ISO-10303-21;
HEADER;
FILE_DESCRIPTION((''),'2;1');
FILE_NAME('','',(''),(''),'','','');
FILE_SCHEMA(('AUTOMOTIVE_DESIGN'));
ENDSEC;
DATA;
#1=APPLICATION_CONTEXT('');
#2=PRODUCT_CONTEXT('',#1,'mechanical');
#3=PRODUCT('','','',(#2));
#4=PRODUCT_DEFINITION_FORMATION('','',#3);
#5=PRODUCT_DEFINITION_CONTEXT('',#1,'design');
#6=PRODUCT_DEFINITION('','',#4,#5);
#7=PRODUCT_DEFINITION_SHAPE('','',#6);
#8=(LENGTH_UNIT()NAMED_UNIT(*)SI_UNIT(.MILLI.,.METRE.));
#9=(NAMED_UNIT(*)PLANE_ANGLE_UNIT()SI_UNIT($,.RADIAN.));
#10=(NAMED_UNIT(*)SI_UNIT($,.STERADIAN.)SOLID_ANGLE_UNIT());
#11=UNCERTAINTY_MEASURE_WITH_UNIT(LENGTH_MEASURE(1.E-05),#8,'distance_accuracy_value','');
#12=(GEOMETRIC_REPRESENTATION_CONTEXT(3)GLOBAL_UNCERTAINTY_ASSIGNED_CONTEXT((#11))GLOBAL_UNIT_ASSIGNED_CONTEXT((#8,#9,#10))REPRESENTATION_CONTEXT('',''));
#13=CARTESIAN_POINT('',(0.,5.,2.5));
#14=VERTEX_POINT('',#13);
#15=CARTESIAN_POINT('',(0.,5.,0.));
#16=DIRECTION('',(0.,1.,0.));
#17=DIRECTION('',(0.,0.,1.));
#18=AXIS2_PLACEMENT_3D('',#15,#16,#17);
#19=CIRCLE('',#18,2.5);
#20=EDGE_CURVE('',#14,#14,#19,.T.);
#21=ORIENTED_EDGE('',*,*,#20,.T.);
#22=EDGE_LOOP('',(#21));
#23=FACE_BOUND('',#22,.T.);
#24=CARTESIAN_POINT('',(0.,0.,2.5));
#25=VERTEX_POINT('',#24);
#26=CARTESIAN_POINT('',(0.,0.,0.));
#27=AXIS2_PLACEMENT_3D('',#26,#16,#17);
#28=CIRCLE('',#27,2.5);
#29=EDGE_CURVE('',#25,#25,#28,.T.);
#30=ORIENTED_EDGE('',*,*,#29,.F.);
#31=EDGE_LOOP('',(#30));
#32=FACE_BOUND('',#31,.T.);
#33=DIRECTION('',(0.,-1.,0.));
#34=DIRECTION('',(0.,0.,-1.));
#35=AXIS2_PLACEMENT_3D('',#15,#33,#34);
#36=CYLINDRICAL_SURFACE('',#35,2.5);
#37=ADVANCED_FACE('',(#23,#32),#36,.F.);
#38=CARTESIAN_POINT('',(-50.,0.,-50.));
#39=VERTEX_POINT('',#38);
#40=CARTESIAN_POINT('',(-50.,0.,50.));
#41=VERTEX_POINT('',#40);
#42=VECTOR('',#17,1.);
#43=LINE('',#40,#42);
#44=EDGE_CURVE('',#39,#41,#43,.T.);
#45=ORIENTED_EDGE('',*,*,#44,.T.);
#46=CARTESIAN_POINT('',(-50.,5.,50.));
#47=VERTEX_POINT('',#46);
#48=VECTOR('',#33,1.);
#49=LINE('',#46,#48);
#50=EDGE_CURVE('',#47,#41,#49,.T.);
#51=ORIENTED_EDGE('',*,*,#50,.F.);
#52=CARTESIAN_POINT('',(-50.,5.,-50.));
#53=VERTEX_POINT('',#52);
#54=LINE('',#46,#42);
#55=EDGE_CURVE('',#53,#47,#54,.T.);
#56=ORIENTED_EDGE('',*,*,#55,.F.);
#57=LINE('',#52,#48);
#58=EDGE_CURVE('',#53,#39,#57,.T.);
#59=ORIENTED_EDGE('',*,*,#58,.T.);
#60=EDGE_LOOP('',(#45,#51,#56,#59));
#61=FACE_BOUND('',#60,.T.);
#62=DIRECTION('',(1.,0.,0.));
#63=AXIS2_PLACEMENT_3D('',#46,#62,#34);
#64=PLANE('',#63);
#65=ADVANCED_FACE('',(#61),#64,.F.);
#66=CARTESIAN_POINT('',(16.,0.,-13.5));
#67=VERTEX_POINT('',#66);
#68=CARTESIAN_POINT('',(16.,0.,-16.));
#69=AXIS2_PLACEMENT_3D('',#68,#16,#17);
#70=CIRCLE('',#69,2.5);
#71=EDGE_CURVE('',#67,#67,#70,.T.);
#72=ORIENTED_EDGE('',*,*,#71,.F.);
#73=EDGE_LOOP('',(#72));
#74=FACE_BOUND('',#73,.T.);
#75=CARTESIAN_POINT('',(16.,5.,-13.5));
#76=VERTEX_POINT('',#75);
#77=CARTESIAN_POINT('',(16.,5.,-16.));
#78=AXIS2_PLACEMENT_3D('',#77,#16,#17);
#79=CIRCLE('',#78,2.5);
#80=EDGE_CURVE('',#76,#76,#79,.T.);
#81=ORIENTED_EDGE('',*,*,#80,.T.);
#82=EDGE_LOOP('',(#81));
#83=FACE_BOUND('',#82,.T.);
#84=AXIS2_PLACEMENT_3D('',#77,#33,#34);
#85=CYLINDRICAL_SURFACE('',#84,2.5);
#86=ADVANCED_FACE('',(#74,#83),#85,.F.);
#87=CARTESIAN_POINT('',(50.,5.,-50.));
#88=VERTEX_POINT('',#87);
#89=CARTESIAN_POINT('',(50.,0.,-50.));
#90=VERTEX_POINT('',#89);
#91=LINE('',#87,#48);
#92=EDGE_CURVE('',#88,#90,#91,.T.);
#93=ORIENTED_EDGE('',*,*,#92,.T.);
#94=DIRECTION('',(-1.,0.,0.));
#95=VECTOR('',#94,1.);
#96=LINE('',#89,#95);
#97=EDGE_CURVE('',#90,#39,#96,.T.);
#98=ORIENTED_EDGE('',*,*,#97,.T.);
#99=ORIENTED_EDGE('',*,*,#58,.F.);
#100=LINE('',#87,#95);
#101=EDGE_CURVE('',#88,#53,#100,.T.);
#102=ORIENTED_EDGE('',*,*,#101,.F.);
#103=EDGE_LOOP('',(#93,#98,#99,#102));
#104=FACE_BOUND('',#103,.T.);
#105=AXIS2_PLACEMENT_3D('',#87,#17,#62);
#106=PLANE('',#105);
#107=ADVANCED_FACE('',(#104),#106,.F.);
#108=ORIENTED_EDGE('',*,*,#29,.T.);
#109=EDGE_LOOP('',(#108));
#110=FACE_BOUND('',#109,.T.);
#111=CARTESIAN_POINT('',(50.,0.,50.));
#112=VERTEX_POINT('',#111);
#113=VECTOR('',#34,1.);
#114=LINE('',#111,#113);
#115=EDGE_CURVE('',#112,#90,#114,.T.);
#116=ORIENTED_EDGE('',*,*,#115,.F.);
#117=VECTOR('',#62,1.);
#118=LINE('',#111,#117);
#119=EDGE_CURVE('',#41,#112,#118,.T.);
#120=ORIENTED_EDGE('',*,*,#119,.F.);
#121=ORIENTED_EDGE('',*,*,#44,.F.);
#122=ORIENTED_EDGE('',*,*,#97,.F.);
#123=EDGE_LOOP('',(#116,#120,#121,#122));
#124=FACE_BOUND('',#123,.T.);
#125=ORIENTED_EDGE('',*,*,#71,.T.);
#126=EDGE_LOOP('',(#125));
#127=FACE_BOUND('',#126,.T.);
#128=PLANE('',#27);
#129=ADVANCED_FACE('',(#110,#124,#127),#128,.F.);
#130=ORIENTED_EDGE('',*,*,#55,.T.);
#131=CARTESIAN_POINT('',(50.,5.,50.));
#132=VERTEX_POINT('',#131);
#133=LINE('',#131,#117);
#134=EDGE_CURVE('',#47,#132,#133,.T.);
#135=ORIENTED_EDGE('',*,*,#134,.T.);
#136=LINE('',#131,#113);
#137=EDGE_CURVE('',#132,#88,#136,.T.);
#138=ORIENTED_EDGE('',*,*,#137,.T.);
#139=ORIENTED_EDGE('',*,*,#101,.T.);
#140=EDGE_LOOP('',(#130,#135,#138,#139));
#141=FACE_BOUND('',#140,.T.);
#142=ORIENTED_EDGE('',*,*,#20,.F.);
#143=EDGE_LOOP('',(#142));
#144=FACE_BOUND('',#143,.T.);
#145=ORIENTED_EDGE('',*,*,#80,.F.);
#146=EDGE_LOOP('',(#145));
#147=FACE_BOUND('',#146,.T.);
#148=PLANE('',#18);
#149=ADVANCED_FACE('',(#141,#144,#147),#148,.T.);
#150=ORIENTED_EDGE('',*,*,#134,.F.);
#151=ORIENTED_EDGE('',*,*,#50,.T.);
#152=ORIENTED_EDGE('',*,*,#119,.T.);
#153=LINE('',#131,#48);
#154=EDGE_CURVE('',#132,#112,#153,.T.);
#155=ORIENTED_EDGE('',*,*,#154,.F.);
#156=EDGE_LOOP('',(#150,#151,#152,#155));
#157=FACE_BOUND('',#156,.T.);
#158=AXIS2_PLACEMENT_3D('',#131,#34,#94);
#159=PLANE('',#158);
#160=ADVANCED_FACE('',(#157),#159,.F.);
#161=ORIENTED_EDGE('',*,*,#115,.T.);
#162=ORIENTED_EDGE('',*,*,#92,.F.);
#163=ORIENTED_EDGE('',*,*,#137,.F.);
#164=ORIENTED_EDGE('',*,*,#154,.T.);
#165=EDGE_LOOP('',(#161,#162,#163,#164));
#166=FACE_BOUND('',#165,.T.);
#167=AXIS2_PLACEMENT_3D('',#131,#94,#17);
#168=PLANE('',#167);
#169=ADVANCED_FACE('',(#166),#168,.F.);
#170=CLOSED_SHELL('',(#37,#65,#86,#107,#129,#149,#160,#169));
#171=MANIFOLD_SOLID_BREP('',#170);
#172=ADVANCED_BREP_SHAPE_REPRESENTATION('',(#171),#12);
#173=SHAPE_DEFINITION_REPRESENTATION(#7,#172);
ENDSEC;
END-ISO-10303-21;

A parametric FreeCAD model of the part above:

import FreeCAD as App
import Part
import Sketcher

V = App.Vector
Q = App.Units.Quantity

doc = App.newDocument("Part")
body = doc.addObject("PartDesign::Body", "Body")

sketch1 = body.newObject("Sketcher::SketchObject", "Sketch")
sketch1.AttachmentSupport = (doc.getObject("XZ_Plane"), [""])
sketch1.MapMode = "FlatFace"
sketch1.addGeometry(Part.LineSegment(V(-50, -50, 0), V(-50, 50, 0)), False)
sketch1.addGeometry(Part.LineSegment(V(-50, 50, 0), V(50, 50, 0)), False)
sketch1.addGeometry(Part.LineSegment(V(50, 50, 0), V(50, -50, 0)), False)
sketch1.addGeometry(Part.LineSegment(V(50, -50, 0), V(-50, -50, 0)), False)
sketch1.addGeometry(Part.Circle(V(0, 0, 0), V(0, 0, 1), 2.5), False)
sketch1.addGeometry(Part.Circle(V(16, -16, 0), V(0, 0, 1), 2.5), False)
sketch1.addConstraint(Sketcher.Constraint("Coincident", 0, 2, 1, 1))
sketch1.addConstraint(Sketcher.Constraint("Coincident", 1, 2, 2, 1))
sketch1.addConstraint(Sketcher.Constraint("Coincident", 2, 2, 3, 1))
sketch1.addConstraint(Sketcher.Constraint("Coincident", 3, 2, 0, 1))
sketch1.addConstraint(Sketcher.Constraint("Vertical", 0))
sketch1.addConstraint(Sketcher.Constraint("Horizontal", 1))
sketch1.addConstraint(Sketcher.Constraint("Vertical", 2))
sketch1.addConstraint(Sketcher.Constraint("Horizontal", 3))
sketch1.addConstraint(Sketcher.Constraint("Coincident", 4, 3, -1, 1))
sketch1.addConstraint(Sketcher.Constraint("Equal", 4, 5))
sketch1.addConstraint(Sketcher.Constraint("Symmetric", 0, 2, 2, 2, -1, 1))
sketch1.addConstraint(Sketcher.Constraint("Equal", 3, 0))
sketch1.addConstraint(Sketcher.Constraint("Diameter", 4, Q("5 mm")))
sketch1.addConstraint(Sketcher.Constraint("DistanceX", 1, 1, 1, 2, Q("100 mm")))
sketch1.addConstraint(Sketcher.Constraint("DistanceX", -1, 1, 5, 3, Q("16 mm")))
sketch1.addConstraint(Sketcher.Constraint("DistanceY", 5, 3, -1, 1, Q("16 mm")))
pad1 = body.newObject("PartDesign::Pad", "Pad")
pad1.Profile = sketch1
pad1.Length = 5
pad1.Reversed = True

doc.recompute()
